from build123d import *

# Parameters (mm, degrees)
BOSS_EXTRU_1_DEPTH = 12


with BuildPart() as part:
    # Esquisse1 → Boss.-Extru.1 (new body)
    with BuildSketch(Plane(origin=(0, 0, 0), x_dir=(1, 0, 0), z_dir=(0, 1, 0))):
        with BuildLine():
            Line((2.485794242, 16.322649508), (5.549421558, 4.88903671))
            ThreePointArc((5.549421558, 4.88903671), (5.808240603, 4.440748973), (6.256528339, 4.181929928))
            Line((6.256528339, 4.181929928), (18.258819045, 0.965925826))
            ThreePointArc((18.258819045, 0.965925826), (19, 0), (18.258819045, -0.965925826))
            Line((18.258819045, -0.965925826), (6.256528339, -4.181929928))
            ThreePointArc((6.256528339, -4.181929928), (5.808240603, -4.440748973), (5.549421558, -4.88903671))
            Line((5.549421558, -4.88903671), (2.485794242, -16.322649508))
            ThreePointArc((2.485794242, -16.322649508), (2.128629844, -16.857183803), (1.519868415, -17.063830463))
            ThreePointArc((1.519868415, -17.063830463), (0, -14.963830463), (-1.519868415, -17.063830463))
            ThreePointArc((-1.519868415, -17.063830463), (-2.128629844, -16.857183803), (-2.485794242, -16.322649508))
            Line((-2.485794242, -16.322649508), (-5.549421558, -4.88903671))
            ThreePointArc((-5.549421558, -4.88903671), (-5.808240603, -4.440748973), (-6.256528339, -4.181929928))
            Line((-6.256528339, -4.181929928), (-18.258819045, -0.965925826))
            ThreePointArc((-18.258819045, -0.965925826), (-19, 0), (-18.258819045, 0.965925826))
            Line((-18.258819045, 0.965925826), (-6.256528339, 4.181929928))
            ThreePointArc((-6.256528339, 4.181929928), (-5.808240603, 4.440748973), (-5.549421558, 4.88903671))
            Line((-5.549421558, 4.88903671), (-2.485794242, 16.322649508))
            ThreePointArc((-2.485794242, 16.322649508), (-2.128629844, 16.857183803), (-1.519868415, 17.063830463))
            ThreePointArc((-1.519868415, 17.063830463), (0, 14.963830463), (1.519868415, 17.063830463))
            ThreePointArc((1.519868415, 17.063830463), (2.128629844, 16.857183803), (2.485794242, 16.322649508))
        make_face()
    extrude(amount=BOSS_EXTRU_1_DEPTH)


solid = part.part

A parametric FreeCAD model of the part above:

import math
import FreeCAD as App
import Part
import Sketcher

V = App.Vector
Q = App.Units.Quantity

doc = App.newDocument("Part")
body = doc.addObject("PartDesign::Body", "Body")

sketch1 = doc.addObject("Sketcher::SketchObject", "Sketch")
body.addObject(sketch1)
sketch1.AttachmentSupport = (doc.XZ_Plane, [""])
sketch1.MapMode = "FlatFace"
sketch1.addGeometry([
    Part.LineSegment(V(5.5, -4.9, 0), V(2.5, -16.3, 0)),
    Part.ArcOfCircle(Part.Circle(V(1.5, -16.1, 0), V(0, 0, 1), 1), math.radians(-90), math.radians(-15)),
    Part.ArcOfCircle(Part.Circle(V(0, -16.6, 0), V(0, 0, 1), 1.6), math.radians(-18), math.radians(198)),
    Part.ArcOfCircle(Part.Circle(V(-1.5, -16.1, 0), V(0, 0, 1), 1), math.radians(-165), math.radians(-90)),
    Part.LineSegment(V(-2.5, -16.3, 0), V(-5.5, -4.9, 0)),
    Part.ArcOfCircle(Part.Circle(V(-6.5, -5.1, 0), V(0, 0, 1), 1), math.radians(15), math.radians(75)),
    Part.LineSegment(V(-6.3, -4.2, 0), V(-18.3, -1, 0)),
    Part.ArcOfCircle(Part.Circle(V(-18, 0, 0), V(0, 0, 1), 1), math.radians(105), math.radians(255)),
    Part.LineSegment(V(-18.3, 1, 0), V(-6.3, 4.2, 0)),
    Part.ArcOfCircle(Part.Circle(V(-6.5, 5.1, 0), V(0, 0, 1), 1), math.radians(-75), math.radians(-15)),
    Part.LineSegment(V(-5.5, 4.9, 0), V(-2.5, 16.3, 0)),
    Part.ArcOfCircle(Part.Circle(V(-1.5, 16.1, 0), V(0, 0, 1), 1), math.radians(90), math.radians(165)),
    Part.ArcOfCircle(Part.Circle(V(0, 16.6, 0), V(0, 0, 1), 1.6), math.radians(162), math.radians(378)),
    Part.ArcOfCircle(Part.Circle(V(1.5, 16.1, 0), V(0, 0, 1), 1), math.radians(15), math.radians(90)),
    Part.LineSegment(V(2.5, 16.3, 0), V(5.5, 4.9, 0)),
    Part.ArcOfCircle(Part.Circle(V(6.5, 5.1, 0), V(0, 0, 1), 1), math.radians(-165), math.radians(-105)),
    Part.LineSegment(V(6.3, 4.2, 0), V(18.3, 1, 0)),
    Part.ArcOfCircle(Part.Circle(V(18, 0, 0), V(0, 0, 1), 1), math.radians(-75), math.radians(75)),
    Part.LineSegment(V(18.3, -1, 0), V(6.3, -4.2, 0)),
    Part.ArcOfCircle(Part.Circle(V(6.5, -5.1, 0), V(0, 0, 1), 1), math.radians(105), math.radians(165)),
], False)
sketch1.addConstraint([
    Sketcher.Constraint("Tangent", 0, 2, 1, 2),
    Sketcher.Constraint("Coincident", 1, 1, 2, 1),
    Sketcher.Constraint("Coincident", 2, 2, 3, 2),
    Sketcher.Constraint("Tangent", 3, 1, 4, 1),
    Sketcher.Constraint("Tangent", 4, 2, 5, 1),
    Sketcher.Constraint("Tangent", 5, 2, 6, 1),
    Sketcher.Constraint("Tangent", 6, 2, 7, 2),
    Sketcher.Constraint("Tangent", 7, 1, 8, 1),
    Sketcher.Constraint("Tangent", 8, 2, 9, 1),
    Sketcher.Constraint("Tangent", 9, 2, 10, 1),
    Sketcher.Constraint("Tangent", 10, 2, 11, 2),
    Sketcher.Constraint("Coincident", 11, 1, 12, 1),
    Sketcher.Constraint("Coincident", 12, 2, 13, 2),
    Sketcher.Constraint("Tangent", 13, 1, 14, 1),
    Sketcher.Constraint("Tangent", 14, 2, 15, 1),
    Sketcher.Constraint("Tangent", 15, 2, 16, 1),
    Sketcher.Constraint("Tangent", 16, 2, 17, 2),
    Sketcher.Constraint("Tangent", 17, 1, 18, 1),
    Sketcher.Constraint("Tangent", 18, 2, 19, 1),
    Sketcher.Constraint("Tangent", 19, 2, 0, 1),
    Sketcher.Constraint("Equal", 1, 3),
    Sketcher.Constraint("Equal", 3, 5),
    Sketcher.Constraint("Equal", 5, 7),
    Sketcher.Constraint("Equal", 7, 9),
    Sketcher.Constraint("Equal", 9, 11),
    Sketcher.Constraint("Equal", 2, 12),
    Sketcher.Constraint("Equal", 11, 13),
    Sketcher.Constraint("Equal", 13, 15),
    Sketcher.Constraint("Equal", 15, 17),
    Sketcher.Constraint("Equal", 17, 19),
    Sketcher.Constraint("Symmetric", 1, 3, 11, 3, -1, 1),
    Sketcher.Constraint("Symmetric", 2, 3, 12, 3, -1, 1),
    Sketcher.Constraint("Symmetric", 3, 3, 13, 3, -1, 1),
    Sketcher.Constraint("Symmetric", 5, 3, 15, 3, -1, 1),
    Sketcher.Constraint("Symmetric", 7, 3, 17, 3, -1, 1),
    Sketcher.Constraint("Symmetric", 9, 3, 19, 3, -1, 1),
    Sketcher.Constraint("Symmetric", 1, 3, 3, 3, -2),
    Sketcher.Constraint("Symmetric", 9, 3, 15, 3, -2),
    Sketcher.Constraint("PointOnObject", 2, 3, -2),
    Sketcher.Constraint("PointOnObject", 7, 3, -1),
    Sketcher.Constraint("Perpendicular", 0, 6),
    Sketcher.Constraint("Vertical", 13, 3, 1, 1),
    Sketcher.Constraint("Radius", 1, 1.0),
    Sketcher.Constraint("Radius", 2, 1.6),
    Sketcher.Constraint("Angle", 0, Q("-105 deg")),
    Sketcher.Constraint("DistanceX", 7, 3, -1, 1, 18.0),
    Sketcher.Constraint("DistanceY", 2, 3, 1, 3, 0.5),
    Sketcher.Constraint("DistanceY", 1, 3, -1, 1, 16.06383),
])
pad1 = doc.addObject("PartDesign::Pad", "Pad")
body.addObject(pad1)
pad1.Profile = sketch1
pad1.Length = 12
pad1.Reversed = True

doc.recompute()
